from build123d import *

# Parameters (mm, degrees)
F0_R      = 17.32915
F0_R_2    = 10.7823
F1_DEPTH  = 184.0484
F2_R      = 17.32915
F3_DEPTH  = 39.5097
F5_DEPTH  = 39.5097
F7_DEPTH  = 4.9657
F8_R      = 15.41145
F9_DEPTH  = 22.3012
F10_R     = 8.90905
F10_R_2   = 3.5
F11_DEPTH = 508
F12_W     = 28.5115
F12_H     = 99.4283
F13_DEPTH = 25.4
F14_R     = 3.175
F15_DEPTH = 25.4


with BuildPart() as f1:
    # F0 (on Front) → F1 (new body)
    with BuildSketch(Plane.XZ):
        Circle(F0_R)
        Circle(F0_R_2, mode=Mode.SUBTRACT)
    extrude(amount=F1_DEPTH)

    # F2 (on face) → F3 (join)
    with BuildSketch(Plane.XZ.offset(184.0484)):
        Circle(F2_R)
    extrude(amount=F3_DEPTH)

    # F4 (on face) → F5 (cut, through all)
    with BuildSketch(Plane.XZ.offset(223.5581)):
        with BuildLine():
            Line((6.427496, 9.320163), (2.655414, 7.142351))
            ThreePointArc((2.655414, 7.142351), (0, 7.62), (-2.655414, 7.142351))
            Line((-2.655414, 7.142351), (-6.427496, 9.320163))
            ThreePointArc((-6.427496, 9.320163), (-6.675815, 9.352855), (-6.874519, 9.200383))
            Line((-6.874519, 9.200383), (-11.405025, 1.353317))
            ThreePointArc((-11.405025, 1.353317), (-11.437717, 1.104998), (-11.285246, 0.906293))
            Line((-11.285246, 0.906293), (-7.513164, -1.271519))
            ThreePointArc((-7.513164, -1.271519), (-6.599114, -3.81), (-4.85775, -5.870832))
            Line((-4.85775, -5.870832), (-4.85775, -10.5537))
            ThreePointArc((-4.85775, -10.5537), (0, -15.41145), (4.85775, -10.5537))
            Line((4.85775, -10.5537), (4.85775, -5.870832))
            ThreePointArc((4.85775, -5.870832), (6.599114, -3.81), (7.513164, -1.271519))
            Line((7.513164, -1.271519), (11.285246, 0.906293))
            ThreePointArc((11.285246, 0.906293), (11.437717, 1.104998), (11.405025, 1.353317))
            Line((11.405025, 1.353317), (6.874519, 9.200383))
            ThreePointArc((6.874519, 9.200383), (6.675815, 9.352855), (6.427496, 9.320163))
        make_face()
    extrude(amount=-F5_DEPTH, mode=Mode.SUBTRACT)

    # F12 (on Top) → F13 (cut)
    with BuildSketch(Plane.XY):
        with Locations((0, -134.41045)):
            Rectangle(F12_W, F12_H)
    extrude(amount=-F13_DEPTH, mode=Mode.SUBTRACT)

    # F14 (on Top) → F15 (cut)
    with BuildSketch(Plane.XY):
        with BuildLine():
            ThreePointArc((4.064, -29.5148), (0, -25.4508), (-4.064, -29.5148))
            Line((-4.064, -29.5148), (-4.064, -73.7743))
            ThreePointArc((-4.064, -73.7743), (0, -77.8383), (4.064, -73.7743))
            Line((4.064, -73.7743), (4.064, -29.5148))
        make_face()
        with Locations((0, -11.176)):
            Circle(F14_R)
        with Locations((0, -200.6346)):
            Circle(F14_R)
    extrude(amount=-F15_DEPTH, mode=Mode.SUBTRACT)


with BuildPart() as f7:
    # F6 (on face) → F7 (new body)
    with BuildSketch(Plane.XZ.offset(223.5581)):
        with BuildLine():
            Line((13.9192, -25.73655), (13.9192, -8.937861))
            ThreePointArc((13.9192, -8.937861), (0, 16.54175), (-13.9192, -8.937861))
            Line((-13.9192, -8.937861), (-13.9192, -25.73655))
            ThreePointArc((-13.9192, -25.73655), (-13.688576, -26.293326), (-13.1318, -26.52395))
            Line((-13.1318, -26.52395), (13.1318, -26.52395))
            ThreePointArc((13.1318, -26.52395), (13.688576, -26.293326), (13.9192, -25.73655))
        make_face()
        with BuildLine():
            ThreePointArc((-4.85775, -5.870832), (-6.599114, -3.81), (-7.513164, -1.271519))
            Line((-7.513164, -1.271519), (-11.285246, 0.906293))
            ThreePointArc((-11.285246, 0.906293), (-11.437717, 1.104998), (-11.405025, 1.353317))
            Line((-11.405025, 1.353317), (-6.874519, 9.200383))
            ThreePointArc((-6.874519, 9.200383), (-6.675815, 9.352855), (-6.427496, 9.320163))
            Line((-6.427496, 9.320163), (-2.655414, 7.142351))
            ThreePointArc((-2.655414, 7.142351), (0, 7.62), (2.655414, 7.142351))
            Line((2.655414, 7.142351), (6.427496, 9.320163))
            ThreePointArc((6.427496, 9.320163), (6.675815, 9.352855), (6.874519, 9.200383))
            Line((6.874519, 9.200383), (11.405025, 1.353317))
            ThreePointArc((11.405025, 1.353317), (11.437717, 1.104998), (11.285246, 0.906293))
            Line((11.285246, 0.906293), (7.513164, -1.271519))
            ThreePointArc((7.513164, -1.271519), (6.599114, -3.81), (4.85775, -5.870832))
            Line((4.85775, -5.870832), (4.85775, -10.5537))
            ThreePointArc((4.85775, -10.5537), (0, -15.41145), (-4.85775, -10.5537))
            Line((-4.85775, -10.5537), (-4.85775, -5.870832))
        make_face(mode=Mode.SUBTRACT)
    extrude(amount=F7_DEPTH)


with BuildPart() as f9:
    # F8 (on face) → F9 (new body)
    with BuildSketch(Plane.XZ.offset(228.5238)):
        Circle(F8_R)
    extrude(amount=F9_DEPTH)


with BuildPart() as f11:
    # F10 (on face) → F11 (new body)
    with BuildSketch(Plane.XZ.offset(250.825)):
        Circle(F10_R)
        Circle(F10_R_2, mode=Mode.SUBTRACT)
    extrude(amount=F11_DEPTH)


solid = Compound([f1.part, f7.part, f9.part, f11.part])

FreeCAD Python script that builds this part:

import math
import FreeCAD as App
import Part
import Sketcher

V = App.Vector
Q = App.Units.Quantity


def add_polygon(sketch, points):
    """Adds a closed chain of lines whose ends are joined by coincident constraints."""
    first, n = sketch.GeometryCount, len(points)
    for a, b in zip(points, points[1:] + points[:1]):
        sketch.addGeometry(Part.LineSegment(App.Vector(*a, 0), App.Vector(*b, 0)), False)
    for i in range(n):
        sketch.addConstraint(Sketcher.Constraint("Coincident", first + i, 2, first + (i + 1) % n, 1))

doc = App.newDocument("Part")
body = doc.addObject("PartDesign::Body", "Body")

sketch1 = body.newObject("Sketcher::SketchObject", "Sketch")
sketch1.AttachmentSupport = (doc.getObject("XZ_Plane"), [""])
sketch1.MapMode = "FlatFace"
sketch1.addGeometry([
    Part.Circle(V(0, 0, 0), V(0, 0, 1), 17.32915),
    Part.Circle(V(0, 0, 0), V(0, 0, 1), 10.7823),
], False)
sketch1.addConstraint([
    Sketcher.Constraint("Coincident", 0, 3, -1, 1),
    Sketcher.Constraint("Coincident", 1, 3, -1, 1),
    Sketcher.Constraint("Diameter", 1, Q("0.849 in")),
    Sketcher.Constraint("Diameter", 0, Q("1.3645 in")),
])
pad1 = body.newObject("PartDesign::Pad", "Pad")
pad1.Profile = sketch1
pad1.Length = Q("7.246 in")

sketch2 = body.newObject("Sketcher::SketchObject", "Sketch001")
sketch2.AttachmentSupport = (doc.getObject("XZ_Plane"), [""])
sketch2.MapMode = "FlatFace"
sketch2.AttachmentOffset = App.Placement(V(0, 0, 7.246 * 25.4), App.Rotation())
sketch2.addGeometry(Part.Circle(V(0, 0, 0), V(0, 0, 1), 17.32915), False)
sketch2.addConstraint([
    Sketcher.Constraint("Coincident", 0, 3, -1, 1),
    Sketcher.Constraint("Diameter", 0, Q("1.3645 in")),
])
pad2 = body.newObject("PartDesign::Pad", "Pad001")
pad2.Profile = sketch2
pad2.Length = Q("1.5555 in")

sketch3 = body.newObject("Sketcher::SketchObject", "Sketch002")
sketch3.AttachmentSupport = (doc.getObject("XZ_Plane"), [""])
sketch3.MapMode = "FlatFace"
sketch3.AttachmentOffset = App.Placement(V(0, 0, 8.8015 * 25.4), App.Rotation())
sketch3.addGeometry([
    Part.LineSegment(V(6.427496, 9.320163, 0), V(2.655414, 7.142351, 0)),
    Part.ArcOfCircle(Part.Circle(V(0, -0.000001, 0), V(0, 0, 1), 7.620001), math.radians(69.605659), math.radians(110.394341)),
    Part.LineSegment(V(-2.655414, 7.142351, 0), V(-6.427496, 9.320163, 0)),
    Part.ArcOfCircle(Part.Circle(V(-6.591118, 9.036763, 0), V(0, 0, 1), 0.327242), math.radians(59.999832), math.radians(150.000299)),
    Part.LineSegment(V(-6.874519, 9.200383, 0), V(-11.405025, 1.353317, 0)),
    Part.ArcOfCircle(Part.Circle(V(-11.121623, 1.189695, 0), V(0, 0, 1), 0.327245), math.radians(150.000001), math.radians(239.999827)),
    Part.LineSegment(V(-11.285246, 0.906293, 0), V(-7.513164, -1.271519, 0)),
    Part.ArcOfCircle(Part.Circle(V(-0.000006, -0.000004, 0), V(0, 0, 1), 7.619993), math.radians(-170.394373), math.radians(-129.605638)),
    Part.LineSegment(V(-4.85775, -5.870832, 0), V(-4.85775, -10.5537, 0)),
    Part.ArcOfCircle(Part.Circle(V(0, -10.5537, 0), V(0, 0, 1), 4.85775), math.radians(180), math.radians(360)),
    Part.LineSegment(V(4.85775, -10.5537, 0), V(4.85775, -5.870832, 0)),
    Part.ArcOfCircle(Part.Circle(V(0.000006, -0.000004, 0), V(0, 0, 1), 7.619993), math.radians(-50.394362), math.radians(-9.605627)),
    Part.LineSegment(V(7.513164, -1.271519, 0), V(11.285246, 0.906293, 0)),
    Part.ArcOfCircle(Part.Circle(V(11.121623, 1.189695, 0), V(0, 0, 1), 0.327245), math.radians(-59.999827), math.radians(29.999999)),
    Part.LineSegment(V(11.405025, 1.353317, 0), V(6.874519, 9.200383, 0)),
    Part.ArcOfCircle(Part.Circle(V(6.591118, 9.036763, 0), V(0, 0, 1), 0.327242), math.radians(29.999701), math.radians(120.000168)),
], False)
sketch3.addConstraint([
    Sketcher.Constraint("Coincident", 0, 2, 1, 1),
    Sketcher.Constraint("Coincident", 1, 2, 2, 1),
    Sketcher.Constraint("Coincident", 2, 2, 3, 1),
    Sketcher.Constraint("Coincident", 3, 2, 4, 1),
    Sketcher.Constraint("Tangent", 4, 2, 5, 1),
    Sketcher.Constraint("Coincident", 5, 2, 6, 1),
    Sketcher.Constraint("Coincident", 6, 2, 7, 1),
    Sketcher.Constraint("Coincident", 7, 2, 8, 1),
    Sketcher.Constraint("Tangent", 8, 2, 9, 1),
    Sketcher.Constraint("Tangent", 9, 2, 10, 1),
    Sketcher.Constraint("Coincident", 10, 2, 11, 1),
    Sketcher.Constraint("Coincident", 11, 2, 12, 1),
    Sketcher.Constraint("Coincident", 12, 2, 13, 1),
    Sketcher.Constraint("Tangent", 13, 2, 14, 1),
    Sketcher.Constraint("Coincident", 14, 2, 15, 1),
    Sketcher.Constraint("Coincident", 15, 2, 0, 1),
    Sketcher.Constraint("Vertical", 8),
    Sketcher.Constraint("Vertical", 10),
    Sketcher.Constraint("Coincident", 1, 3, -1, 1),
    Sketcher.Constraint("Coincident", 7, 3, -1, 1),
    Sketcher.Constraint("Coincident", 11, 3, -1, 1),
    Sketcher.Constraint("Equal", 7, 11),
    Sketcher.Constraint("Equal", 5, 13),
    Sketcher.Constraint("Equal", 3, 15),
    Sketcher.Constraint("Symmetric", 5, 3, 13, 3, -2),
    Sketcher.Constraint("Symmetric", 3, 3, 15, 3, -2),
    Sketcher.Constraint("PointOnObject", 9, 3, -2),
    Sketcher.Constraint("Perpendicular", 2, 4),
    Sketcher.Constraint("Perpendicular", 4, 6),
    Sketcher.Constraint("Parallel", 0, 12),
    Sketcher.Constraint("Perpendicular", 12, 14),
    Sketcher.Constraint("Horizontal", 5, 2, 12, 2),
    Sketcher.Constraint("Horizontal", 3, 2, 14, 2),
    Sketcher.Constraint("Horizontal", 2, 2, 15, 2),
    Sketcher.Constraint("Equal", 2, 6),
    Sketcher.Constraint("Radius", 1, Q("0.3000001 in")),
    Sketcher.Constraint("Angle", 0, Q("-150.000006 deg")),
    Sketcher.Constraint("Radius", 9, Q("4.85775 mm")),
    Sketcher.Constraint("DistanceY", 9, 3, -1, 1, Q("0.4155 in")),
    Sketcher.Constraint("Radius", 3, Q("0.327242 mm")),
    Sketcher.Constraint("Radius", 5, Q("0.327245 mm")),
    Sketcher.Constraint("Radius", 7, Q("7.619993 mm")),
    Sketcher.Constraint("DistanceY", 7, 3, 5, 3, Q("1.189699 mm")),
    Sketcher.Constraint("DistanceY", 3, 3, 2, 2, Q("0.2834 mm")),
    Sketcher.Constraint("DistanceX", 3, 2, 3, 3, Q("0.283401 mm")),
    Sketcher.Constraint("DistanceY", 5, 2, 5, 3, Q("0.283402 mm")),
    Sketcher.Constraint("Distance", 4, Q("9.061012 mm")),
])
pocket1 = body.newObject("PartDesign::Pocket", "Pocket")
pocket1.Profile = sketch3
pocket1.Length = Q("1.5555 in")

sketch4 = body.newObject("Sketcher::SketchObject", "Sketch003")
sketch4.AttachmentSupport = (doc.getObject("XY_Plane"), [""])
sketch4.MapMode = "FlatFace"
add_polygon(sketch4, [(-14.25575, -84.6963), (-14.25575, -184.1246), (14.25575, -184.1246), (14.25575, -84.6963)])
sketch4.addConstraint([
    Sketcher.Constraint("Vertical", 0),
    Sketcher.Constraint("Horizontal", 1),
    Sketcher.Constraint("Vertical", 2),
    Sketcher.Constraint("Horizontal", 3),
    Sketcher.Constraint("DistanceX", 1, 1, 1, 2, Q("1.1225 in")),
    Sketcher.Constraint("DistanceY", 0, 2, 0, 1, Q("3.9145 in")),
    Sketcher.Constraint("DistanceY", 0, 2, -1, 1, Q("7.249 in")),
    Sketcher.Constraint("DistanceX", 0, 2, -1, 1, Q("14.25575 mm")),
])
pocket2 = body.newObject("PartDesign::Pocket", "Pocket001")
pocket2.Profile = sketch4
pocket2.Length = Q("1 in")

sketch5 = body.newObject("Sketcher::SketchObject", "Sketch004")
sketch5.AttachmentSupport = (doc.getObject("XY_Plane"), [""])
sketch5.MapMode = "FlatFace"
sketch5.addGeometry([
    Part.ArcOfCircle(Part.Circle(V(0, -29.5148, 0), V(0, 0, 1), 4.064), math.radians(0), math.radians(180)),
    Part.LineSegment(V(-4.064, -29.5148, 0), V(-4.064, -73.7743, 0)),
    Part.ArcOfCircle(Part.Circle(V(0, -73.7743, 0), V(0, 0, 1), 4.064), math.radians(180), math.radians(360)),
    Part.LineSegment(V(4.064, -73.7743, 0), V(4.064, -29.5148, 0)),
    Part.Circle(V(0, -11.176, 0), V(0, 0, 1), 3.175),
    Part.Circle(V(0, -200.6346, 0), V(0, 0, 1), 3.175),
], False)
sketch5.addConstraint([
    Sketcher.Constraint("Tangent", 0, 2, 1, 1),
    Sketcher.Constraint("Tangent", 1, 2, 2, 1),
    Sketcher.Constraint("Tangent", 2, 2, 3, 1),
    Sketcher.Constraint("Tangent", 3, 2, 0, 1),
    Sketcher.Constraint("Vertical", 1),
    Sketcher.Constraint("Vertical", 3),
    Sketcher.Constraint("Equal", 4, 5),
    Sketcher.Constraint("PointOnObject", 0, 3, -2),
    Sketcher.Constraint("PointOnObject", 4, 3, -2),
    Sketcher.Constraint("PointOnObject", 5, 3, -2),
    Sketcher.Constraint("Diameter", 4, Q("0.25 in")),
    Sketcher.Constraint("Radius", 0, Q("0.16 in")),
    Sketcher.Constraint("DistanceY", 4, 3, -1, 1, Q("0.44 in")),
    Sketcher.Constraint("DistanceY", 1, 2, 1, 1, Q("1.7425 in")),
    Sketcher.Constraint("DistanceY", 0, 3, -1, 1, Q("1.162 in")),
    Sketcher.Constraint("DistanceY", 5, 3, -1, 1, Q("7.899 in")),
])
pocket3 = body.newObject("PartDesign::Pocket", "Pocket002")
pocket3.Profile = sketch5
pocket3.Length = Q("1 in")
body2 = doc.addObject("PartDesign::Body", "Body001")

sketch6 = body2.newObject("Sketcher::SketchObject", "Sketch005")
sketch6.AttachmentSupport = (doc.getObject("XZ_Plane001"), [""])
sketch6.MapMode = "FlatFace"
sketch6.AttachmentOffset = App.Placement(V(0, 0, 8.8015 * 25.4), App.Rotation())
sketch6.addGeometry([
    Part.LineSegment(V(13.9192, -25.73655, 0), V(13.9192, -8.937861, 0)),
    Part.ArcOfCircle(Part.Circle(V(0, 0, 0), V(0, 0, 1), 16.54175), math.radians(-32.705519), math.radians(212.705519)),
    Part.LineSegment(V(-13.9192, -8.937861, 0), V(-13.9192, -25.73655, 0)),
    Part.ArcOfCircle(Part.Circle(V(-13.1318, -25.73655, 0), V(0, 0, 1), 0.7874), math.radians(179.99997), math.radians(270.00003)),
    Part.LineSegment(V(-13.1318, -26.52395, 0), V(13.1318, -26.52395, 0)),
    Part.ArcOfCircle(Part.Circle(V(13.1318, -25.73655, 0), V(0, 0, 1), 0.7874), math.radians(-90.00003), math.radians(0.00003)),
    Part.LineSegment(V(-4.85775, -10.5537, 0), V(-4.85775, -5.870832, 0)),
    Part.ArcOfCircle(Part.Circle(V(-0.000006, -0.000004, 0), V(0, 0, 1), 7.619993), math.radians(-170.394373), math.radians(-129.605638)),
    Part.LineSegment(V(-7.513164, -1.271519, 0), V(-11.285246, 0.906293, 0)),
    Part.ArcOfCircle(Part.Circle(V(-11.121623, 1.189695, 0), V(0, 0, 1), 0.327245), math.radians(150.000001), math.radians(239.999827)),
    Part.LineSegment(V(-11.405025, 1.353317, 0), V(-6.874519, 9.200383, 0)),
    Part.ArcOfCircle(Part.Circle(V(-6.591118, 9.036763, 0), V(0, 0, 1), 0.327242), math.radians(59.999832), math.radians(150.000299)),
    Part.LineSegment(V(-6.427496, 9.320163, 0), V(-2.655414, 7.142351, 0)),
    Part.ArcOfCircle(Part.Circle(V(0, -0.000001, 0), V(0, 0, 1), 7.620001), math.radians(69.605659), math.radians(110.394341)),
    Part.LineSegment(V(2.655414, 7.142351, 0), V(6.427496, 9.320163, 0)),
    Part.ArcOfCircle(Part.Circle(V(6.591118, 9.036763, 0), V(0, 0, 1), 0.327242), math.radians(29.999701), math.radians(120.000168)),
    Part.LineSegment(V(6.874519, 9.200383, 0), V(11.405025, 1.353317, 0)),
    Part.ArcOfCircle(Part.Circle(V(11.121623, 1.189695, 0), V(0, 0, 1), 0.327245), math.radians(-59.999827), math.radians(29.999999)),
    Part.LineSegment(V(11.285246, 0.906293, 0), V(7.513164, -1.271519, 0)),
    Part.ArcOfCircle(Part.Circle(V(0.000006, -0.000004, 0), V(0, 0, 1), 7.619993), math.radians(-50.394362), math.radians(-9.605627)),
    Part.LineSegment(V(4.85775, -5.870832, 0), V(4.85775, -10.5537, 0)),
    Part.ArcOfCircle(Part.Circle(V(0, -10.5537, 0), V(0, 0, 1), 4.85775), math.radians(180), math.radians(360)),
], False)
sketch6.addConstraint([
    Sketcher.Constraint("Coincident", 0, 2, 1, 1),
    Sketcher.Constraint("Coincident", 1, 2, 2, 1),
    Sketcher.Constraint("Tangent", 2, 2, 3, 1),
    Sketcher.Constraint("Tangent", 3, 2, 4, 1),
    Sketcher.Constraint("Tangent", 4, 2, 5, 1),
    Sketcher.Constraint("Tangent", 5, 2, 0, 1),
    Sketcher.Constraint("Coincident", 6, 2, 7, 2),
    Sketcher.Constraint("Coincident", 7, 1, 8, 1),
    Sketcher.Constraint("Coincident", 8, 2, 9, 2),
    Sketcher.Constraint("Tangent", 9, 1, 10, 1),
    Sketcher.Constraint("Coincident", 10, 2, 11, 2),
    Sketcher.Constraint("Coincident", 11, 1, 12, 1),
    Sketcher.Constraint("Coincident", 12, 2, 13, 2),
    Sketcher.Constraint("Coincident", 13, 1, 14, 1),
    Sketcher.Constraint("Coincident", 14, 2, 15, 2),
    Sketcher.Constraint("Coincident", 15, 1, 16, 1),
    Sketcher.Constraint("Tangent", 16, 2, 17, 2),
    Sketcher.Constraint("Coincident", 17, 1, 18, 1),
    Sketcher.Constraint("Coincident", 18, 2, 19, 2),
    Sketcher.Constraint("Coincident", 19, 1, 20, 1),
    Sketcher.Constraint("Tangent", 20, 2, 21, 2),
    Sketcher.Constraint("Tangent", 21, 1, 6, 1),
    Sketcher.Constraint("Vertical", 0),
    Sketcher.Constraint("Vertical", 2),
    Sketcher.Constraint("Horizontal", 4),
    Sketcher.Constraint("Vertical", 6),
    Sketcher.Constraint("Vertical", 20),
    Sketcher.Constraint("Coincident", 1, 3, -1, 1),
    Sketcher.Constraint("Coincident", 7, 3, -1, 1),
    Sketcher.Constraint("Coincident", 13, 3, -1, 1),
    Sketcher.Constraint("Coincident", 19, 3, -1, 1),
    Sketcher.Constraint("Equal", 3, 5),
    Sketcher.Constraint("Equal", 11, 15),
    Sketcher.Constraint("Equal", 9, 17),
    Sketcher.Constraint("Equal", 7, 19),
    Sketcher.Constraint("Symmetric", 11, 3, 15, 3, -2),
    Sketcher.Constraint("Symmetric", 9, 3, 17, 3, -2),
    Sketcher.Constraint("PointOnObject", 21, 3, -2),
    Sketcher.Constraint("Perpendicular", 8, 10),
    Sketcher.Constraint("Perpendicular", 10, 12),
    Sketcher.Constraint("Perpendicular", 14, 16),
    Sketcher.Constraint("Perpendicular", 16, 18),
    Sketcher.Constraint("Horizontal", 0, 2, 1, 2),
    Sketcher.Constraint("Horizontal", 11, 1, 14, 2),
    Sketcher.Constraint("Horizontal", 10, 2, 15, 1),
    Sketcher.Constraint("Horizontal", 8, 2, 17, 1),
    Sketcher.Constraint("Equal", 8, 12),
    Sketcher.Constraint("Radius", 13, Q("0.3000001 in")),
    Sketcher.Constraint("Angle", 8, Q("150.000006 deg")),
    Sketcher.Constraint("Radius", 3, Q("0.031 in")),
    Sketcher.Constraint("DistanceX", 4, 1, 4, 2, Q("1.034 in")),
    Sketcher.Constraint("Radius", 1, Q("16.54175 mm")),
    Sketcher.Constraint("Radius", 21, Q("4.85775 mm")),
    Sketcher.Constraint("DistanceY", 21, 3, -1, 1, Q("0.4155 in")),
    Sketcher.Constraint("Radius", 7, Q("7.619993 mm")),
    Sketcher.Constraint("Radius", 9, Q("0.327245 mm")),
    Sketcher.Constraint("Radius", 11, Q("0.327242 mm")),
    Sketcher.Constraint("DistanceY", 0, 1, 0, 2, Q("16.798689 mm")),
    Sketcher.Constraint("DistanceY", 7, 3, 9, 3, Q("1.189699 mm")),
    Sketcher.Constraint("DistanceY", 8, 2, 9, 3, Q("0.283402 mm")),
    Sketcher.Constraint("DistanceX", 10, 2, 11, 3, Q("0.283401 mm")),
    Sketcher.Constraint("DistanceY", 7, 1, 10, 2, Q("10.471902 mm")),
    Sketcher.Constraint("DistanceY", 11, 3, 11, 1, Q("0.2834 mm")),
])
pad3 = body2.newObject("PartDesign::Pad", "Pad002")
pad3.Profile = sketch6
pad3.Length = Q("0.1955 in")
body3 = doc.addObject("PartDesign::Body", "Body002")

sketch7 = body3.newObject("Sketcher::SketchObject", "Sketch006")
sketch7.AttachmentSupport = (doc.getObject("XZ_Plane002"), [""])
sketch7.MapMode = "FlatFace"
sketch7.AttachmentOffset = App.Placement(V(0, 0, 8.997 * 25.4), App.Rotation())
sketch7.addGeometry(Part.Circle(V(0, 0, 0), V(0, 0, 1), 15.41145), False)
sketch7.addConstraint([
    Sketcher.Constraint("Coincident", 0, 3, -1, 1),
    Sketcher.Constraint("Diameter", 0, Q("1.2135 in")),
])
pad4 = body3.newObject("PartDesign::Pad", "Pad003")
pad4.Profile = sketch7
pad4.Length = Q("0.878 in")
body4 = doc.addObject("PartDesign::Body", "Body003")

sketch8 = body4.newObject("Sketcher::SketchObject", "Sketch007")
sketch8.AttachmentSupport = (doc.getObject("XZ_Plane003"), [""])
sketch8.MapMode = "FlatFace"
sketch8.AttachmentOffset = App.Placement(V(0, 0, 9.875 * 25.4), App.Rotation())
sketch8.addGeometry([
    Part.Circle(V(0, 0, 0), V(0, 0, 1), 8.90905),
    Part.Circle(V(0, 0, 0), V(0, 0, 1), 3.5),
], False)
sketch8.addConstraint([
    Sketcher.Constraint("Coincident", 0, 3, -1, 1),
    Sketcher.Constraint("Coincident", 1, 3, -1, 1),
    Sketcher.Constraint("Diameter", 0, Q("0.7015 in")),
    Sketcher.Constraint("Diameter", 1, Q("7 mm")),
])
pad5 = body4.newObject("PartDesign::Pad", "Pad004")
pad5.Profile = sketch8
pad5.Length = Q("20 in")

doc.recompute()
